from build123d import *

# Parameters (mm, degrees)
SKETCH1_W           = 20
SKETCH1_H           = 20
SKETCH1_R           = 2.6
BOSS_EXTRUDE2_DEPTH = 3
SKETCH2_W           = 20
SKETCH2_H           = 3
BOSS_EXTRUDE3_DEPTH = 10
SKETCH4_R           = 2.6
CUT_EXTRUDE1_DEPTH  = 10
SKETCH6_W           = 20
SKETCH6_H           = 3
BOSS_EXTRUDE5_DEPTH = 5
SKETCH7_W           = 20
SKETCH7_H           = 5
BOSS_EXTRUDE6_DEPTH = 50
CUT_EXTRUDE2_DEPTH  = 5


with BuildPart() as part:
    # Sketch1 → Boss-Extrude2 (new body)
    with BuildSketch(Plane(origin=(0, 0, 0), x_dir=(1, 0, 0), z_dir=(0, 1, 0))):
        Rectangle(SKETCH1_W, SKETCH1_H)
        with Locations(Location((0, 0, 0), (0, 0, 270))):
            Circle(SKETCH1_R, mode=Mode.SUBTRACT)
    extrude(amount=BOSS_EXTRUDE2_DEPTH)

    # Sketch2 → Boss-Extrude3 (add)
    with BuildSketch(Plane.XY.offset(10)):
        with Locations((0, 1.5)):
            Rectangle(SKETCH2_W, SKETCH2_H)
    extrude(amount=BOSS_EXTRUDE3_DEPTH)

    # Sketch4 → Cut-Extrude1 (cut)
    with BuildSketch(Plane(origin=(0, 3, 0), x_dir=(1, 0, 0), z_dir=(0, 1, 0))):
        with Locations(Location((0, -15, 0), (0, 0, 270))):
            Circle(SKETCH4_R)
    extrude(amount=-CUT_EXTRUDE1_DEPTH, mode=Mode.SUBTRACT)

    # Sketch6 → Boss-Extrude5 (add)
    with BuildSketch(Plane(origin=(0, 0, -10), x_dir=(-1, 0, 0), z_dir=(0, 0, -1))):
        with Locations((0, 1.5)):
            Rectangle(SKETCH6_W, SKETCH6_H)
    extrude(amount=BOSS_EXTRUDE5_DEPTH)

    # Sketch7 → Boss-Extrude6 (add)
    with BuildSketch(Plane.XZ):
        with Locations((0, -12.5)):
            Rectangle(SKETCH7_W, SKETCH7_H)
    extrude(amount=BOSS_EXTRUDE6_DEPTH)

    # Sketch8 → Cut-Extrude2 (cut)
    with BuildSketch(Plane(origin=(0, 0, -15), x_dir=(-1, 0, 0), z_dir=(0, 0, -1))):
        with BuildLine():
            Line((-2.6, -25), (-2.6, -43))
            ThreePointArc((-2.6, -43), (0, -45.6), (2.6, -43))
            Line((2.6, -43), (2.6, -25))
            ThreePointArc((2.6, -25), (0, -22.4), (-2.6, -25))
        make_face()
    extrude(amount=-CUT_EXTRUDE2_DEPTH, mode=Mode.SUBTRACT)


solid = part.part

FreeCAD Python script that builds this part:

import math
import FreeCAD as App
import Part
import Sketcher

V = App.Vector
Q = App.Units.Quantity


def add_polygon(sketch, points):
    """Adds a closed chain of lines whose ends are joined by coincident constraints."""
    first, n = sketch.GeometryCount, len(points)
    for a, b in zip(points, points[1:] + points[:1]):
        sketch.addGeometry(Part.LineSegment(App.Vector(*a, 0), App.Vector(*b, 0)), False)
    for i in range(n):
        sketch.addConstraint(Sketcher.Constraint("Coincident", first + i, 2, first + (i + 1) % n, 1))

doc = App.newDocument("Part")
body = doc.addObject("PartDesign::Body", "Body")

# Sketch on XZ plane
sketch1 = doc.addObject("Sketcher::SketchObject", "Sketch")
body.addObject(sketch1)
sketch1.AttachmentSupport = (doc.XZ_Plane, [""])
sketch1.MapMode = "FlatFace"
add_polygon(sketch1, [(-10, -10), (-10, 10), (10, 10), (10, -10)])  # lines 0-3
sketch1.addGeometry(Part.Circle(V(0, 0, 0), V(0, 0, 1), 2.6), False)  # 4
sketch1.addConstraint([
    Sketcher.Constraint("Vertical", 0),
    Sketcher.Constraint("Horizontal", 1),
    Sketcher.Constraint("Vertical", 2),
    Sketcher.Constraint("Horizontal", 3),
    Sketcher.Constraint("Coincident", 4, 3, -1, 1),
    Sketcher.Constraint("Symmetric", 0, 2, 2, 2, -1, 1),
    Sketcher.Constraint("Equal", 3, 0),
    Sketcher.Constraint("Diameter", 4, Q("5.2 mm")),
    Sketcher.Constraint("DistanceX", 1, 1, 1, 2, Q("20 mm")),
])
pad1 = doc.addObject("PartDesign::Pad", "Pad")
body.addObject(pad1)
pad1.Profile = sketch1
pad1.Length = 3
pad1.Reversed = True

# Sketch on XY plane
sketch2 = doc.addObject("Sketcher::SketchObject", "Sketch001")
body.addObject(sketch2)
sketch2.AttachmentSupport = (doc.XY_Plane, [""])
sketch2.MapMode = "FlatFace"
sketch2.AttachmentOffset = App.Placement(V(0, 0, 10), App.Rotation())
add_polygon(sketch2, [(-10, 3), (-10, 0), (10, 0), (10, 3)])  # lines 0-3
sketch2.addConstraint([
    Sketcher.Constraint("Vertical", 0),
    Sketcher.Constraint("Horizontal", 1),
    Sketcher.Constraint("Vertical", 2),
    Sketcher.Constraint("Horizontal", 3),
    Sketcher.Constraint("Symmetric", 0, 2, 1, 2, -1, 1),
    Sketcher.Constraint("DistanceX", 1, 1, 1, 2, Q("20 mm")),
    Sketcher.Constraint("DistanceY", 0, 2, 0, 1, Q("3 mm")),
])
pad2 = doc.addObject("PartDesign::Pad", "Pad001")
body.addObject(pad2)
pad2.Profile = sketch2
pad2.Length = 10

# Sketch on XZ plane
sketch3 = doc.addObject("Sketcher::SketchObject", "Sketch002")
body.addObject(sketch3)
sketch3.AttachmentSupport = (doc.XZ_Plane, [""])
sketch3.MapMode = "FlatFace"
sketch3.AttachmentOffset = App.Placement(V(0, 0, -3), App.Rotation())
sketch3.addGeometry(Part.Circle(V(0, 15, 0), V(0, 0, 1), 2.6), False)
sketch3.addConstraint([
    Sketcher.Constraint("PointOnObject", 0, 3, -2),
    Sketcher.Constraint("Diameter", 0, Q("5.2 mm")),
    Sketcher.Constraint("DistanceY", -1, 1, 0, 3, Q("15 mm")),
])
pocket1 = doc.addObject("PartDesign::Pocket", "Pocket")
body.addObject(pocket1)
pocket1.Profile = sketch3
pocket1.Length = 10
pocket1.Reversed = True

# Sketch on XY plane
sketch4 = doc.addObject("Sketcher::SketchObject", "Sketch003")
body.addObject(sketch4)
sketch4.AttachmentSupport = (doc.XY_Plane, [""])
sketch4.MapMode = "FlatFace"
sketch4.AttachmentOffset = App.Placement(V(0, 0, -10), App.Rotation())
add_polygon(sketch4, [(10, 3), (10, 0), (-10, 0), (-10, 3)])  # lines 0-3
sketch4.addConstraint([
    Sketcher.Constraint("Vertical", 0),
    Sketcher.Constraint("Horizontal", 1),
    Sketcher.Constraint("Vertical", 2),
    Sketcher.Constraint("Horizontal", 3),
    Sketcher.Constraint("Symmetric", 0, 2, 1, 2, -1, 1),
    Sketcher.Constraint("DistanceX", 1, 2, 1, 1, Q("20 mm")),
    Sketcher.Constraint("DistanceY", 0, 2, 0, 1, Q("3 mm")),
])
pad3 = doc.addObject("PartDesign::Pad", "Pad002")
body.addObject(pad3)
pad3.Profile = sketch4
pad3.Length = 5
pad3.Reversed = True

# Sketch on XZ plane
sketch5 = doc.addObject("Sketcher::SketchObject", "Sketch004")
body.addObject(sketch5)
sketch5.AttachmentSupport = (doc.XZ_Plane, [""])
sketch5.MapMode = "FlatFace"
add_polygon(sketch5, [(-10, -10), (-10, -15), (10, -15), (10, -10)])  # lines 0-3
sketch5.addConstraint([
    Sketcher.Constraint("Vertical", 0),
    Sketcher.Constraint("Horizontal", 1),
    Sketcher.Constraint("Vertical", 2),
    Sketcher.Constraint("Horizontal", 3),
    Sketcher.Constraint("DistanceX", 1, 1, 1, 2, Q("20 mm")),
    Sketcher.Constraint("DistanceY", 0, 2, 0, 1, Q("5 mm")),
    Sketcher.Constraint("DistanceX", 0, 2, -1, 1, Q("10 mm")),
    Sketcher.Constraint("DistanceY", 0, 2, -1, 1, Q("15 mm")),
])
pad4 = doc.addObject("PartDesign::Pad", "Pad003")
body.addObject(pad4)
pad4.Profile = sketch5
pad4.Length = 50

# Sketch on XY plane
sketch6 = doc.addObject("Sketcher::SketchObject", "Sketch005")
body.addObject(sketch6)
sketch6.AttachmentSupport = (doc.XY_Plane, [""])
sketch6.MapMode = "FlatFace"
sketch6.AttachmentOffset = App.Placement(V(0, 0, -15), App.Rotation())
sketch6.addGeometry([
    Part.LineSegment(V(2.6, -25, 0), V(2.6, -43, 0)),
    Part.ArcOfCircle(Part.Circle(V(0, -43, 0), V(0, 0, 1), 2.6), math.radians(180), math.radians(360)),
    Part.LineSegment(V(-2.6, -43, 0), V(-2.6, -25, 0)),
    Part.ArcOfCircle(Part.Circle(V(0, -25, 0), V(0, 0, 1), 2.6), math.radians(0), math.radians(180)),
], False)
sketch6.addConstraint([
    Sketcher.Constraint("Tangent", 0, 2, 1, 2),
    Sketcher.Constraint("Tangent", 1, 1, 2, 1),
    Sketcher.Constraint("Tangent", 2, 2, 3, 2),
    Sketcher.Constraint("Tangent", 3, 1, 0, 1),
    Sketcher.Constraint("Vertical", 0),
    Sketcher.Constraint("Vertical", 2),
    Sketcher.Constraint("PointOnObject", 1, 3, -2),
    Sketcher.Constraint("Radius", 1, Q("2.6 mm")),
    Sketcher.Constraint("DistanceY", 0, 2, 0, 1, Q("18 mm")),
    Sketcher.Constraint("DistanceY", 1, 3, -1, 1, Q("43 mm")),
])
pocket2 = doc.addObject("PartDesign::Pocket", "Pocket001")
body.addObject(pocket2)
pocket2.Profile = sketch6
pocket2.Length = 5
pocket2.Reversed = True

doc.recompute()
